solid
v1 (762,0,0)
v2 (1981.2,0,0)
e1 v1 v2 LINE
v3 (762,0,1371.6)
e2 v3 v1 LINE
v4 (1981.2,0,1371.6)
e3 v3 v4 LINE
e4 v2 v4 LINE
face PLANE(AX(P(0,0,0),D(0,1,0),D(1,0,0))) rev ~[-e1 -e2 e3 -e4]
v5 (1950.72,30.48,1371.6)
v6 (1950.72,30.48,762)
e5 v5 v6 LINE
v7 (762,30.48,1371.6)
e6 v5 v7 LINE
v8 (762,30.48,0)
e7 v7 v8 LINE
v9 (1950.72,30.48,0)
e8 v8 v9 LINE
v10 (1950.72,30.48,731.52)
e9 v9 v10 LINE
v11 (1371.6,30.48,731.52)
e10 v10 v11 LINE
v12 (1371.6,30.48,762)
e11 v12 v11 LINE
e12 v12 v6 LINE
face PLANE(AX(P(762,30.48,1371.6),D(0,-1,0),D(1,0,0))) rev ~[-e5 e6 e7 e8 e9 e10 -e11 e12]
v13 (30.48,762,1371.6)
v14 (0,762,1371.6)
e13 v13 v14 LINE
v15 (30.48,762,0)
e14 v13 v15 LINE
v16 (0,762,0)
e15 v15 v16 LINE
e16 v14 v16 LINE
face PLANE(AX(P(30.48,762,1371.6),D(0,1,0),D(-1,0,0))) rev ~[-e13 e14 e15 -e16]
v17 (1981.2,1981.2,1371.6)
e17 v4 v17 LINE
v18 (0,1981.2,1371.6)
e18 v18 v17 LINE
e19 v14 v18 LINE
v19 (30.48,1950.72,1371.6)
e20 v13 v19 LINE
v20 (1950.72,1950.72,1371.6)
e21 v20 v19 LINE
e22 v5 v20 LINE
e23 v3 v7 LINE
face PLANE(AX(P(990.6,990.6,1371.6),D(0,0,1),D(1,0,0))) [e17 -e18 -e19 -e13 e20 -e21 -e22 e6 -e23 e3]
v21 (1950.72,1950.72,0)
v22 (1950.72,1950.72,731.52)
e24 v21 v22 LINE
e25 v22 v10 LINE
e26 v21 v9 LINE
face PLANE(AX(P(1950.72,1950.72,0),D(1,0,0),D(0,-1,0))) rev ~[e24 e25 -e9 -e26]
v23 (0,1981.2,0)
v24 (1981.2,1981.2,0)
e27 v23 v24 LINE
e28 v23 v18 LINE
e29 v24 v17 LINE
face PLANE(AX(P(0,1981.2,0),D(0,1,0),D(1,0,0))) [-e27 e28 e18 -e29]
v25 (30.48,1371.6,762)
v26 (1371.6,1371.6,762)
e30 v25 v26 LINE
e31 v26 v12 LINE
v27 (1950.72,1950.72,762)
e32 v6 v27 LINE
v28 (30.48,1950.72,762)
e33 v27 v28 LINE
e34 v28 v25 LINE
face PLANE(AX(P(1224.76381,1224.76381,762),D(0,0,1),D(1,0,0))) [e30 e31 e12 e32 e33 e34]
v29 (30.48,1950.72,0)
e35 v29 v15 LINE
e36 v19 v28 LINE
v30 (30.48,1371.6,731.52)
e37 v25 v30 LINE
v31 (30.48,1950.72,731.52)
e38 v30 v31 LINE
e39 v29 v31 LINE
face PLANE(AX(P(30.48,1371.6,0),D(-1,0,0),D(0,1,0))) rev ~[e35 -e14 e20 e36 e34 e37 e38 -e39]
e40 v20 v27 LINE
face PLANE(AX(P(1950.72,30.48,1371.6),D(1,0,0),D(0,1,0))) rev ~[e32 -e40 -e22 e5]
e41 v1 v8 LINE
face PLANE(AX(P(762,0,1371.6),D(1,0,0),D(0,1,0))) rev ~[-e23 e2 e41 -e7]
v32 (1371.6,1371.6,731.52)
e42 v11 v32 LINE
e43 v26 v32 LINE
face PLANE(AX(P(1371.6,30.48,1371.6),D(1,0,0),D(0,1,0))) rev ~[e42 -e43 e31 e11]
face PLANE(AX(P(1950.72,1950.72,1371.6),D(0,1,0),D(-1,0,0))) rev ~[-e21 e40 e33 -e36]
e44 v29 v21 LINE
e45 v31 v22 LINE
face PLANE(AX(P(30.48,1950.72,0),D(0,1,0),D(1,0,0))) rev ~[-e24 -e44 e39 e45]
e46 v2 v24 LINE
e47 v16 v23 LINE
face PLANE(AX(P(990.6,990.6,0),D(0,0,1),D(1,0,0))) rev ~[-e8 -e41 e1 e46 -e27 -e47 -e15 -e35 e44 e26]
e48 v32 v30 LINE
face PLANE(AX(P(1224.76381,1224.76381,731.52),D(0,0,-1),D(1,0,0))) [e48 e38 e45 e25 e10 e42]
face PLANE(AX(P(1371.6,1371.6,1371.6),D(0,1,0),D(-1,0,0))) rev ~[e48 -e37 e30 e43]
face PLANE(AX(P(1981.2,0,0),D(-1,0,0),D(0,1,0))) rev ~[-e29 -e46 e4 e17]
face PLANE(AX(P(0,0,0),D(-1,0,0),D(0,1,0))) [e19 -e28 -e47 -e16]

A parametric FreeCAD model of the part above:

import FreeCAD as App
import Part
import Sketcher

V = App.Vector
Q = App.Units.Quantity

doc = App.newDocument("Part")
params = doc.addObject("Spreadsheet::Sheet", "Params")
for row, (alias, value) in enumerate([
    ("sketch1_width", "78 in"),
    ("pad1_length", "54 in"),
    ("sketch2_width", "30 in"),
    ("sketch2_width2", "24 in"),
    ("sketch2_width3", "52.8 in"),
    ("pocket1_length", "60 in"),
    ("sketch3_width", "52.8 in"),
    ("sketch3_width2", "22.8 in"),
    ("pocket2_length", "24 in"),
    ("sketch4_width", "52.8 in"),
    ("sketch4_width2", "75.6 in"),
    ("pocket3_length", "28.8 in"),
], start=1):
    params.set(f"A{row}", alias)
    params.set(f"B{row}", "=" + value)
    params.setAlias(f"B{row}", alias)

body = doc.addObject("PartDesign::Body", "Body")

# Sketch on XY plane
sketch1 = body.newObject("Sketcher::SketchObject", "Sketch")
sketch1.AttachmentSupport = (doc.getObject("XY_Plane"), [""])
sketch1.MapMode = "FlatFace"
sketch1.addGeometry(Part.LineSegment(V(0, 1981, 0), V(0, 0, 0)), False)
sketch1.addGeometry(Part.LineSegment(V(0, 0, 0), V(1981, 0, 0)), False)
sketch1.addGeometry(Part.LineSegment(V(1981, 0, 0), V(1981, 1981, 0)), False)
sketch1.addGeometry(Part.LineSegment(V(1981, 1981, 0), V(0, 1981, 0)), False)
sketch1.addConstraint(Sketcher.Constraint("Coincident", 0, 2, 1, 1))
sketch1.addConstraint(Sketcher.Constraint("Coincident", 1, 2, 2, 1))
sketch1.addConstraint(Sketcher.Constraint("Coincident", 2, 2, 3, 1))
sketch1.addConstraint(Sketcher.Constraint("Coincident", 3, 2, 0, 1))
sketch1.addConstraint(Sketcher.Constraint("Vertical", 0))
sketch1.addConstraint(Sketcher.Constraint("Horizontal", 1))
sketch1.addConstraint(Sketcher.Constraint("Vertical", 2))
sketch1.addConstraint(Sketcher.Constraint("Horizontal", 3))
sketch1.addConstraint(Sketcher.Constraint("Coincident", 0, 2, -1, 1))
sketch1.addConstraint(Sketcher.Constraint("Equal", 3, 0))
sketch1.addConstraint(Sketcher.Constraint("DistanceX", 1, 1, 1, 2, Q("78 in")))
sketch1.setExpression("Constraints[10]", "Params.sketch1_width")
pad1 = body.newObject("PartDesign::Pad", "Pad")
pad1.Profile = sketch1
pad1.setExpression("Length", "Params.pad1_length")

# Sketch on XY plane
sketch2 = body.newObject("Sketcher::SketchObject", "Sketch001")
sketch2.AttachmentSupport = (doc.getObject("XY_Plane"), [""])
sketch2.MapMode = "FlatFace"
sketch2.AttachmentOffset = App.Placement(V(0, 0, 54 * 25.4), App.Rotation())
sketch2.addGeometry(Part.LineSegment(V(1372, 1372, 0), V(30, 1372, 0)), False)
sketch2.addGeometry(Part.LineSegment(V(30, 1372, 0), V(30, 762, 0)), False)
sketch2.addGeometry(Part.LineSegment(V(30, 762, 0), V(0, 762, 0)), False)
sketch2.addGeometry(Part.LineSegment(V(0, 762, 0), V(0, 0, 0)), False)
sketch2.addGeometry(Part.LineSegment(V(0, 0, 0), V(762, 0, 0)), False)
sketch2.addGeometry(Part.LineSegment(V(762, 0, 0), V(762, 30, 0)), False)
sketch2.addGeometry(Part.LineSegment(V(762, 30, 0), V(1372, 30, 0)), False)
sketch2.addGeometry(Part.LineSegment(V(1372, 30, 0), V(1372, 1372, 0)), False)
sketch2.addConstraint(Sketcher.Constraint("Coincident", 0, 2, 1, 1))
sketch2.addConstraint(Sketcher.Constraint("Coincident", 1, 2, 2, 1))
sketch2.addConstraint(Sketcher.Constraint("Coincident", 2, 2, 3, 1))
sketch2.addConstraint(Sketcher.Constraint("Coincident", 3, 2, 4, 1))
sketch2.addConstraint(Sketcher.Constraint("Coincident", 4, 2, 5, 1))
sketch2.addConstraint(Sketcher.Constraint("Coincident", 5, 2, 6, 1))
sketch2.addConstraint(Sketcher.Constraint("Coincident", 6, 2, 7, 1))
sketch2.addConstraint(Sketcher.Constraint("Coincident", 7, 2, 0, 1))
sketch2.addConstraint(Sketcher.Constraint("Horizontal", 0))
sketch2.addConstraint(Sketcher.Constraint("Vertical", 1))
sketch2.addConstraint(Sketcher.Constraint("Horizontal", 2))
sketch2.addConstraint(Sketcher.Constraint("Vertical", 3))
sketch2.addConstraint(Sketcher.Constraint("Horizontal", 4))
sketch2.addConstraint(Sketcher.Constraint("Vertical", 5))
sketch2.addConstraint(Sketcher.Constraint("Horizontal", 6))
sketch2.addConstraint(Sketcher.Constraint("Vertical", 7))
sketch2.addConstraint(Sketcher.Constraint("Coincident", 3, 2, -1, 1))
sketch2.addConstraint(Sketcher.Constraint("Equal", 6, 1))
sketch2.addConstraint(Sketcher.Constraint("Equal", 4, 3))
sketch2.addConstraint(Sketcher.Constraint("Equal", 2, 5))
sketch2.addConstraint(Sketcher.Constraint("DistanceX", 4, 1, 4, 2, Q("30 in")))
sketch2.addConstraint(Sketcher.Constraint("DistanceX", 6, 1, 6, 2, Q("24 in")))
sketch2.addConstraint(Sketcher.Constraint("DistanceX", 0, 2, 0, 1, Q("52.8 in")))
sketch2.setExpression("Constraints[20]", "Params.sketch2_width")
sketch2.setExpression("Constraints[21]", "Params.sketch2_width2")
sketch2.setExpression("Constraints[22]", "Params.sketch2_width3")
pocket1 = body.newObject("PartDesign::Pocket", "Pocket")
pocket1.Profile = sketch2
pocket1.setExpression("Length", "Params.pocket1_length")

# Sketch on XY plane
sketch3 = body.newObject("Sketcher::SketchObject", "Sketch002")
sketch3.AttachmentSupport = (doc.getObject("XY_Plane"), [""])
sketch3.MapMode = "FlatFace"
sketch3.AttachmentOffset = App.Placement(V(0, 0, 54 * 25.4), App.Rotation())
sketch3.addGeometry(Part.LineSegment(V(30, 1951, 0), V(30, 1372, 0)), False)
sketch3.addGeometry(Part.LineSegment(V(30, 1372, 0), V(1372, 1372, 0)), False)
sketch3.addGeometry(Part.LineSegment(V(1372, 1372, 0), V(1372, 30, 0)), False)
sketch3.addGeometry(Part.LineSegment(V(1372, 30, 0), V(1951, 30, 0)), False)
sketch3.addGeometry(Part.LineSegment(V(1951, 30, 0), V(1951, 1951, 0)), False)
sketch3.addGeometry(Part.LineSegment(V(1951, 1951, 0), V(30, 1951, 0)), False)
sketch3.addConstraint(Sketcher.Constraint("Coincident", 0, 2, 1, 1))
sketch3.addConstraint(Sketcher.Constraint("Coincident", 1, 2, 2, 1))
sketch3.addConstraint(Sketcher.Constraint("Coincident", 2, 2, 3, 1))
sketch3.addConstraint(Sketcher.Constraint("Coincident", 3, 2, 4, 1))
sketch3.addConstraint(Sketcher.Constraint("Coincident", 4, 2, 5, 1))
sketch3.addConstraint(Sketcher.Constraint("Coincident", 5, 2, 0, 1))
sketch3.addConstraint(Sketcher.Constraint("Vertical", 0))
sketch3.addConstraint(Sketcher.Constraint("Horizontal", 1))
sketch3.addConstraint(Sketcher.Constraint("Vertical", 2))
sketch3.addConstraint(Sketcher.Constraint("Horizontal", 3))
sketch3.addConstraint(Sketcher.Constraint("Vertical", 4))
sketch3.addConstraint(Sketcher.Constraint("Horizontal", 5))
sketch3.addConstraint(Sketcher.Constraint("Equal", 3, 0))
sketch3.addConstraint(Sketcher.Constraint("Equal", 1, 2))
sketch3.addConstraint(Sketcher.Constraint("DistanceX", 1, 1, 1, 2, Q("52.8 in")))
sketch3.addConstraint(Sketcher.Constraint("DistanceX", 3, 1, 3, 2, Q("22.8 in")))
sketch3.addConstraint(Sketcher.Constraint("DistanceY", -1, 1, 0, 2, Q("54 in")))
sketch3.addConstraint(Sketcher.Constraint("DistanceX", -1, 1, 1, 2, Q("54 in")))
sketch3.setExpression("Constraints[14]", "Params.sketch3_width")
sketch3.setExpression("Constraints[15]", "Params.sketch3_width2")
pocket2 = body.newObject("PartDesign::Pocket", "Pocket001")
pocket2.Profile = sketch3
pocket2.setExpression("Length", "Params.pocket2_length")

# Sketch on XY plane
sketch4 = body.newObject("Sketcher::SketchObject", "Sketch003")
sketch4.AttachmentSupport = (doc.getObject("XY_Plane"), [""])
sketch4.MapMode = "FlatFace"
sketch4.addGeometry(Part.LineSegment(V(1372, 1372, 0), V(30, 1372, 0)), False)
sketch4.addGeometry(Part.LineSegment(V(30, 1372, 0), V(30, 1951, 0)), False)
sketch4.addGeometry(Part.LineSegment(V(30, 1951, 0), V(1951, 1951, 0)), False)
sketch4.addGeometry(Part.LineSegment(V(1951, 1951, 0), V(1951, 30, 0)), False)
sketch4.addGeometry(Part.LineSegment(V(1951, 30, 0), V(1372, 30, 0)), False)
sketch4.addGeometry(Part.LineSegment(V(1372, 30, 0), V(1372, 1372, 0)), False)
sketch4.addConstraint(Sketcher.Constraint("Coincident", 0, 2, 1, 1))
sketch4.addConstraint(Sketcher.Constraint("Coincident", 1, 2, 2, 1))
sketch4.addConstraint(Sketcher.Constraint("Coincident", 2, 2, 3, 1))
sketch4.addConstraint(Sketcher.Constraint("Coincident", 3, 2, 4, 1))
sketch4.addConstraint(Sketcher.Constraint("Coincident", 4, 2, 5, 1))
sketch4.addConstraint(Sketcher.Constraint("Coincident", 5, 2, 0, 1))
sketch4.addConstraint(Sketcher.Constraint("Horizontal", 0))
sketch4.addConstraint(Sketcher.Constraint("Vertical", 1))
sketch4.addConstraint(Sketcher.Constraint("Horizontal", 2))
sketch4.addConstraint(Sketcher.Constraint("Vertical", 3))
sketch4.addConstraint(Sketcher.Constraint("Horizontal", 4))
sketch4.addConstraint(Sketcher.Constraint("Vertical", 5))
sketch4.addConstraint(Sketcher.Constraint("Equal", 4, 1))
sketch4.addConstraint(Sketcher.Constraint("Equal", 2, 3))
sketch4.addConstraint(Sketcher.Constraint("DistanceX", 0, 2, 0, 1, Q("52.8 in")))
sketch4.addConstraint(Sketcher.Constraint("DistanceX", 2, 1, 2, 2, Q("75.6 in")))
sketch4.addConstraint(Sketcher.Constraint("DistanceY", -1, 1, 0, 2, Q("54 in")))
sketch4.addConstraint(Sketcher.Constraint("DistanceX", -1, 1, 4, 2, Q("54 in")))
sketch4.setExpression("Constraints[14]", "Params.sketch4_width")
sketch4.setExpression("Constraints[15]", "Params.sketch4_width2")
pocket3 = body.newObject("PartDesign::Pocket", "Pocket002")
pocket3.Profile = sketch4
pocket3.setExpression("Length", "Params.pocket3_length")
pocket3.Reversed = True

doc.recompute()
